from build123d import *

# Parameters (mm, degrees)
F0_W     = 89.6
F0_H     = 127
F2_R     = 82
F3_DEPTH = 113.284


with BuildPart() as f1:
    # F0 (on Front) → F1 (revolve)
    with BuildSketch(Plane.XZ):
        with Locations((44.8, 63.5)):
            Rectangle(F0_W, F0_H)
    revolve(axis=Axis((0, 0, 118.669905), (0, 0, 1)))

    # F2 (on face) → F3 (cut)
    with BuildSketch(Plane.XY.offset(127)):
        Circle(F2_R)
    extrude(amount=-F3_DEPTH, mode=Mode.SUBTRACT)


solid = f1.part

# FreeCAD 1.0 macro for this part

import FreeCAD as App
import Part
import Sketcher
from FreeCAD import Vector


def add_polygon(sketch, points):
    """Adds a closed chain of lines whose ends are joined by coincident constraints."""
    first, n = sketch.GeometryCount, len(points)
    for a, b in zip(points, points[1:] + points[:1]):
        sketch.addGeometry(Part.LineSegment(App.Vector(*a, 0), App.Vector(*b, 0)), False)
    for i in range(n):
        sketch.addConstraint(Sketcher.Constraint("Coincident", first + i, 2, first + (i + 1) % n, 1))

doc = App.newDocument("Part")
body = doc.addObject("PartDesign::Body", "Body")

sketch1 = body.newObject("Sketcher::SketchObject", "Sketch")
sketch1.AttachmentSupport = (doc.getObject("XZ_Plane"), [""])
sketch1.MapMode = "FlatFace"
add_polygon(sketch1, [(0, 127), (0, 0), (90, 0), (90, 127)])
sketch1.addConstraint(Sketcher.Constraint("Vertical", 0))
sketch1.addConstraint(Sketcher.Constraint("Horizontal", 1))
sketch1.addConstraint(Sketcher.Constraint("Vertical", 2))
sketch1.addConstraint(Sketcher.Constraint("Horizontal", 3))
sketch1.addConstraint(Sketcher.Constraint("Coincident", 0, 2, -1, 1))
sketch1.addConstraint(Sketcher.Constraint("DistanceY", 0, 2, 0, 1, 127.0))
sketch1.addConstraint(Sketcher.Constraint("DistanceX", 1, 1, 1, 2, 89.6))
revolution = body.newObject("PartDesign::Revolution", "Revolution")
revolution.Profile = sketch1
revolution.ReferenceAxis = (sketch1, ["V_Axis"])
revolution.Angle = 360

sketch2 = body.newObject("Sketcher::SketchObject", "Sketch001")
sketch2.AttachmentSupport = (doc.getObject("XY_Plane"), [""])
sketch2.MapMode = "FlatFace"
sketch2.AttachmentOffset = App.Placement(Vector(0, 0, 127), App.Rotation())
sketch2.addGeometry(Part.Circle(Vector(0, 0, 0), Vector(0, 0, 1), 82), False)
sketch2.addConstraint(Sketcher.Constraint("Coincident", 0, 3, -1, 1))
sketch2.addConstraint(Sketcher.Constraint("Diameter", 0, 164.0))
pocket1 = body.newObject("PartDesign::Pocket", "Pocket")
pocket1.Profile = sketch2
pocket1.Length = 113.284

doc.recompute()
